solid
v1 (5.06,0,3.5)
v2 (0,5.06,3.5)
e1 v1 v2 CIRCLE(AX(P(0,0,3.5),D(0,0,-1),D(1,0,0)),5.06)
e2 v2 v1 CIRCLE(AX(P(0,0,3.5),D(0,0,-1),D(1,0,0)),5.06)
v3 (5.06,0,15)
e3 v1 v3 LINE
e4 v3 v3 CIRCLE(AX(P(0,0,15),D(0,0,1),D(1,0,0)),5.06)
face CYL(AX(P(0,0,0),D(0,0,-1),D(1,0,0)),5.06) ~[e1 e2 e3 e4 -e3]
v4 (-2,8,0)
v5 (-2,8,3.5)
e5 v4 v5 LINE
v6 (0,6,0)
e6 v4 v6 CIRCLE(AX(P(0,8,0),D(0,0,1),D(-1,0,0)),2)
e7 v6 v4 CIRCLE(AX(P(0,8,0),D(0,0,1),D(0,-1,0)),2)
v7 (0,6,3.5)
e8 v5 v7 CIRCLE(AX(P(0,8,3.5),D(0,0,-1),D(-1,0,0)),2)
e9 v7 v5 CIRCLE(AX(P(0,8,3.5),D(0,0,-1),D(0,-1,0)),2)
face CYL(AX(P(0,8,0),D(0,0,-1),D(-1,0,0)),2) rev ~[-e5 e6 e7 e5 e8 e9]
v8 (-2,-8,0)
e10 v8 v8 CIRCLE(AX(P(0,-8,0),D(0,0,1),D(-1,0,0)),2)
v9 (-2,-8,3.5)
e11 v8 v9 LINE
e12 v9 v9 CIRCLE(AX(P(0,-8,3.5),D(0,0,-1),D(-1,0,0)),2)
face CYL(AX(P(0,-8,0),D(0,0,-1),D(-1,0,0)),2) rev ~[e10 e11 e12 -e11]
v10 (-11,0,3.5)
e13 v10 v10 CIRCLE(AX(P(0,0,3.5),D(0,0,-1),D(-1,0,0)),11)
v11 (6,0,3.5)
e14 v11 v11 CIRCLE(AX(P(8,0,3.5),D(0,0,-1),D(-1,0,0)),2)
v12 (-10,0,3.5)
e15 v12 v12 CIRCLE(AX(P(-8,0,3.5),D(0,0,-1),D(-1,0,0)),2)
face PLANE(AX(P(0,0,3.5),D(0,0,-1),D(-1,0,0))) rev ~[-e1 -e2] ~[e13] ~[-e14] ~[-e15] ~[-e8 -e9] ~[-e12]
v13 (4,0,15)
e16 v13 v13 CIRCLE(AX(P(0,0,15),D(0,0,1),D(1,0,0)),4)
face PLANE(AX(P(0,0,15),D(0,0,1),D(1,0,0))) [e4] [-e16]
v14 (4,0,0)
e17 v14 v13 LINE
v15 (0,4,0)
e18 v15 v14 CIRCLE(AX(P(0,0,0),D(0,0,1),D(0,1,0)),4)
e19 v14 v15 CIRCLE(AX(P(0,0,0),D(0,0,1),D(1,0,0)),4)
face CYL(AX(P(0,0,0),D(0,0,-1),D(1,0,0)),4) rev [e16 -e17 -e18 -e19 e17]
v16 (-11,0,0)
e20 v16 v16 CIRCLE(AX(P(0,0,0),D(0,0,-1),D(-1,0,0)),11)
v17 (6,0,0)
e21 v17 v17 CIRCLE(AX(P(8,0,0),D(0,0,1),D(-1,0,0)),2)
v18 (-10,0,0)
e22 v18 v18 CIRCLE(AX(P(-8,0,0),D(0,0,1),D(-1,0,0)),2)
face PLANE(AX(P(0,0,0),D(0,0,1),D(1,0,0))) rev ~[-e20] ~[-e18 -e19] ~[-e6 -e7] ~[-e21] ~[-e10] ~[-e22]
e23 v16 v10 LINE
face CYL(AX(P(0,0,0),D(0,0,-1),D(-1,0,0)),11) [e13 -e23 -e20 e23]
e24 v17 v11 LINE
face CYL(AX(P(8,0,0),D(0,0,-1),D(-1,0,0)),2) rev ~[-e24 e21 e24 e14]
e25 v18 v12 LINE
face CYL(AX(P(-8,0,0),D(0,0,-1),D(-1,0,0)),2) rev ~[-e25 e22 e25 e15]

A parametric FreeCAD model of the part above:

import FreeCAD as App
import Part
import Sketcher
from FreeCAD import Vector
Q = App.Units.Quantity

doc = App.newDocument("Part")
body = doc.addObject("PartDesign::Body", "Body")

# Sketch on XY plane
sketch1 = doc.addObject("Sketcher::SketchObject", "Sketch")
body.addObject(sketch1)
sketch1.AttachmentSupport = (doc.XY_Plane, [""])
sketch1.MapMode = "FlatFace"
sketch1.addGeometry([
    Part.Circle(Vector(0, 0, 0), Vector(0, 0, 1), 5.1),
    Part.Circle(Vector(0, 0, 0), Vector(0, 0, 1), 4),
], False)
sketch1.addConstraint([
    Sketcher.Constraint("Coincident", 0, 3, -1, 1),
    Sketcher.Constraint("Coincident", 1, 3, -1, 1),
    Sketcher.Constraint("Diameter", 1, Q("8 mm")),
    Sketcher.Constraint("Diameter", 0, Q("10.12 mm")),
])
pad1 = doc.addObject("PartDesign::Pad", "Pad")
body.addObject(pad1)
pad1.Profile = sketch1
pad1.Length = 15

# Sketch on XY plane
sketch2 = doc.addObject("Sketcher::SketchObject", "Sketch001")
body.addObject(sketch2)
sketch2.AttachmentSupport = (doc.XY_Plane, [""])
sketch2.MapMode = "FlatFace"
sketch2.addGeometry([
    Part.Circle(Vector(0, 0, 0), Vector(0, 0, 1), 11),  # 0
    Part.Circle(Vector(8, 0, 0), Vector(0, 0, 1), 2),  # 1
    Part.Circle(Vector(0, -8, 0), Vector(0, 0, 1), 2),  # 2
    Part.Circle(Vector(-8, 0, 0), Vector(0, 0, 1), 2),  # 3
    Part.Circle(Vector(0, 8, 0), Vector(0, 0, 1), 2),  # 4
    Part.Circle(Vector(0, 0, 0), Vector(0, 0, 1), 4),  # 5
], False)
sketch2.addConstraint([
    Sketcher.Constraint("Coincident", 0, 3, -1, 1),
    Sketcher.Constraint("Coincident", 5, 3, -1, 1),
    Sketcher.Constraint("Equal", 1, 2),
    Sketcher.Constraint("Equal", 2, 3),
    Sketcher.Constraint("Equal", 3, 4),
    Sketcher.Constraint("Symmetric", 1, 3, 3, 3, -1, 1),
    Sketcher.Constraint("Symmetric", 2, 3, 4, 3, -1, 1),
    Sketcher.Constraint("PointOnObject", 1, 3, -1),
    Sketcher.Constraint("PointOnObject", 2, 3, -2),
    Sketcher.Constraint("Diameter", 0, Q("22 mm")),
    Sketcher.Constraint("Diameter", 1, Q("4 mm")),
    Sketcher.Constraint("Diameter", 5, Q("8 mm")),
    Sketcher.Constraint("DistanceX", -1, 1, 1, 3, Q("8 mm")),
    Sketcher.Constraint("DistanceY", 2, 3, -1, 1, Q("8 mm")),
])
pad2 = doc.addObject("PartDesign::Pad", "Pad001")
body.addObject(pad2)
pad2.Profile = sketch2
pad2.Length = 3.5

doc.recompute()
